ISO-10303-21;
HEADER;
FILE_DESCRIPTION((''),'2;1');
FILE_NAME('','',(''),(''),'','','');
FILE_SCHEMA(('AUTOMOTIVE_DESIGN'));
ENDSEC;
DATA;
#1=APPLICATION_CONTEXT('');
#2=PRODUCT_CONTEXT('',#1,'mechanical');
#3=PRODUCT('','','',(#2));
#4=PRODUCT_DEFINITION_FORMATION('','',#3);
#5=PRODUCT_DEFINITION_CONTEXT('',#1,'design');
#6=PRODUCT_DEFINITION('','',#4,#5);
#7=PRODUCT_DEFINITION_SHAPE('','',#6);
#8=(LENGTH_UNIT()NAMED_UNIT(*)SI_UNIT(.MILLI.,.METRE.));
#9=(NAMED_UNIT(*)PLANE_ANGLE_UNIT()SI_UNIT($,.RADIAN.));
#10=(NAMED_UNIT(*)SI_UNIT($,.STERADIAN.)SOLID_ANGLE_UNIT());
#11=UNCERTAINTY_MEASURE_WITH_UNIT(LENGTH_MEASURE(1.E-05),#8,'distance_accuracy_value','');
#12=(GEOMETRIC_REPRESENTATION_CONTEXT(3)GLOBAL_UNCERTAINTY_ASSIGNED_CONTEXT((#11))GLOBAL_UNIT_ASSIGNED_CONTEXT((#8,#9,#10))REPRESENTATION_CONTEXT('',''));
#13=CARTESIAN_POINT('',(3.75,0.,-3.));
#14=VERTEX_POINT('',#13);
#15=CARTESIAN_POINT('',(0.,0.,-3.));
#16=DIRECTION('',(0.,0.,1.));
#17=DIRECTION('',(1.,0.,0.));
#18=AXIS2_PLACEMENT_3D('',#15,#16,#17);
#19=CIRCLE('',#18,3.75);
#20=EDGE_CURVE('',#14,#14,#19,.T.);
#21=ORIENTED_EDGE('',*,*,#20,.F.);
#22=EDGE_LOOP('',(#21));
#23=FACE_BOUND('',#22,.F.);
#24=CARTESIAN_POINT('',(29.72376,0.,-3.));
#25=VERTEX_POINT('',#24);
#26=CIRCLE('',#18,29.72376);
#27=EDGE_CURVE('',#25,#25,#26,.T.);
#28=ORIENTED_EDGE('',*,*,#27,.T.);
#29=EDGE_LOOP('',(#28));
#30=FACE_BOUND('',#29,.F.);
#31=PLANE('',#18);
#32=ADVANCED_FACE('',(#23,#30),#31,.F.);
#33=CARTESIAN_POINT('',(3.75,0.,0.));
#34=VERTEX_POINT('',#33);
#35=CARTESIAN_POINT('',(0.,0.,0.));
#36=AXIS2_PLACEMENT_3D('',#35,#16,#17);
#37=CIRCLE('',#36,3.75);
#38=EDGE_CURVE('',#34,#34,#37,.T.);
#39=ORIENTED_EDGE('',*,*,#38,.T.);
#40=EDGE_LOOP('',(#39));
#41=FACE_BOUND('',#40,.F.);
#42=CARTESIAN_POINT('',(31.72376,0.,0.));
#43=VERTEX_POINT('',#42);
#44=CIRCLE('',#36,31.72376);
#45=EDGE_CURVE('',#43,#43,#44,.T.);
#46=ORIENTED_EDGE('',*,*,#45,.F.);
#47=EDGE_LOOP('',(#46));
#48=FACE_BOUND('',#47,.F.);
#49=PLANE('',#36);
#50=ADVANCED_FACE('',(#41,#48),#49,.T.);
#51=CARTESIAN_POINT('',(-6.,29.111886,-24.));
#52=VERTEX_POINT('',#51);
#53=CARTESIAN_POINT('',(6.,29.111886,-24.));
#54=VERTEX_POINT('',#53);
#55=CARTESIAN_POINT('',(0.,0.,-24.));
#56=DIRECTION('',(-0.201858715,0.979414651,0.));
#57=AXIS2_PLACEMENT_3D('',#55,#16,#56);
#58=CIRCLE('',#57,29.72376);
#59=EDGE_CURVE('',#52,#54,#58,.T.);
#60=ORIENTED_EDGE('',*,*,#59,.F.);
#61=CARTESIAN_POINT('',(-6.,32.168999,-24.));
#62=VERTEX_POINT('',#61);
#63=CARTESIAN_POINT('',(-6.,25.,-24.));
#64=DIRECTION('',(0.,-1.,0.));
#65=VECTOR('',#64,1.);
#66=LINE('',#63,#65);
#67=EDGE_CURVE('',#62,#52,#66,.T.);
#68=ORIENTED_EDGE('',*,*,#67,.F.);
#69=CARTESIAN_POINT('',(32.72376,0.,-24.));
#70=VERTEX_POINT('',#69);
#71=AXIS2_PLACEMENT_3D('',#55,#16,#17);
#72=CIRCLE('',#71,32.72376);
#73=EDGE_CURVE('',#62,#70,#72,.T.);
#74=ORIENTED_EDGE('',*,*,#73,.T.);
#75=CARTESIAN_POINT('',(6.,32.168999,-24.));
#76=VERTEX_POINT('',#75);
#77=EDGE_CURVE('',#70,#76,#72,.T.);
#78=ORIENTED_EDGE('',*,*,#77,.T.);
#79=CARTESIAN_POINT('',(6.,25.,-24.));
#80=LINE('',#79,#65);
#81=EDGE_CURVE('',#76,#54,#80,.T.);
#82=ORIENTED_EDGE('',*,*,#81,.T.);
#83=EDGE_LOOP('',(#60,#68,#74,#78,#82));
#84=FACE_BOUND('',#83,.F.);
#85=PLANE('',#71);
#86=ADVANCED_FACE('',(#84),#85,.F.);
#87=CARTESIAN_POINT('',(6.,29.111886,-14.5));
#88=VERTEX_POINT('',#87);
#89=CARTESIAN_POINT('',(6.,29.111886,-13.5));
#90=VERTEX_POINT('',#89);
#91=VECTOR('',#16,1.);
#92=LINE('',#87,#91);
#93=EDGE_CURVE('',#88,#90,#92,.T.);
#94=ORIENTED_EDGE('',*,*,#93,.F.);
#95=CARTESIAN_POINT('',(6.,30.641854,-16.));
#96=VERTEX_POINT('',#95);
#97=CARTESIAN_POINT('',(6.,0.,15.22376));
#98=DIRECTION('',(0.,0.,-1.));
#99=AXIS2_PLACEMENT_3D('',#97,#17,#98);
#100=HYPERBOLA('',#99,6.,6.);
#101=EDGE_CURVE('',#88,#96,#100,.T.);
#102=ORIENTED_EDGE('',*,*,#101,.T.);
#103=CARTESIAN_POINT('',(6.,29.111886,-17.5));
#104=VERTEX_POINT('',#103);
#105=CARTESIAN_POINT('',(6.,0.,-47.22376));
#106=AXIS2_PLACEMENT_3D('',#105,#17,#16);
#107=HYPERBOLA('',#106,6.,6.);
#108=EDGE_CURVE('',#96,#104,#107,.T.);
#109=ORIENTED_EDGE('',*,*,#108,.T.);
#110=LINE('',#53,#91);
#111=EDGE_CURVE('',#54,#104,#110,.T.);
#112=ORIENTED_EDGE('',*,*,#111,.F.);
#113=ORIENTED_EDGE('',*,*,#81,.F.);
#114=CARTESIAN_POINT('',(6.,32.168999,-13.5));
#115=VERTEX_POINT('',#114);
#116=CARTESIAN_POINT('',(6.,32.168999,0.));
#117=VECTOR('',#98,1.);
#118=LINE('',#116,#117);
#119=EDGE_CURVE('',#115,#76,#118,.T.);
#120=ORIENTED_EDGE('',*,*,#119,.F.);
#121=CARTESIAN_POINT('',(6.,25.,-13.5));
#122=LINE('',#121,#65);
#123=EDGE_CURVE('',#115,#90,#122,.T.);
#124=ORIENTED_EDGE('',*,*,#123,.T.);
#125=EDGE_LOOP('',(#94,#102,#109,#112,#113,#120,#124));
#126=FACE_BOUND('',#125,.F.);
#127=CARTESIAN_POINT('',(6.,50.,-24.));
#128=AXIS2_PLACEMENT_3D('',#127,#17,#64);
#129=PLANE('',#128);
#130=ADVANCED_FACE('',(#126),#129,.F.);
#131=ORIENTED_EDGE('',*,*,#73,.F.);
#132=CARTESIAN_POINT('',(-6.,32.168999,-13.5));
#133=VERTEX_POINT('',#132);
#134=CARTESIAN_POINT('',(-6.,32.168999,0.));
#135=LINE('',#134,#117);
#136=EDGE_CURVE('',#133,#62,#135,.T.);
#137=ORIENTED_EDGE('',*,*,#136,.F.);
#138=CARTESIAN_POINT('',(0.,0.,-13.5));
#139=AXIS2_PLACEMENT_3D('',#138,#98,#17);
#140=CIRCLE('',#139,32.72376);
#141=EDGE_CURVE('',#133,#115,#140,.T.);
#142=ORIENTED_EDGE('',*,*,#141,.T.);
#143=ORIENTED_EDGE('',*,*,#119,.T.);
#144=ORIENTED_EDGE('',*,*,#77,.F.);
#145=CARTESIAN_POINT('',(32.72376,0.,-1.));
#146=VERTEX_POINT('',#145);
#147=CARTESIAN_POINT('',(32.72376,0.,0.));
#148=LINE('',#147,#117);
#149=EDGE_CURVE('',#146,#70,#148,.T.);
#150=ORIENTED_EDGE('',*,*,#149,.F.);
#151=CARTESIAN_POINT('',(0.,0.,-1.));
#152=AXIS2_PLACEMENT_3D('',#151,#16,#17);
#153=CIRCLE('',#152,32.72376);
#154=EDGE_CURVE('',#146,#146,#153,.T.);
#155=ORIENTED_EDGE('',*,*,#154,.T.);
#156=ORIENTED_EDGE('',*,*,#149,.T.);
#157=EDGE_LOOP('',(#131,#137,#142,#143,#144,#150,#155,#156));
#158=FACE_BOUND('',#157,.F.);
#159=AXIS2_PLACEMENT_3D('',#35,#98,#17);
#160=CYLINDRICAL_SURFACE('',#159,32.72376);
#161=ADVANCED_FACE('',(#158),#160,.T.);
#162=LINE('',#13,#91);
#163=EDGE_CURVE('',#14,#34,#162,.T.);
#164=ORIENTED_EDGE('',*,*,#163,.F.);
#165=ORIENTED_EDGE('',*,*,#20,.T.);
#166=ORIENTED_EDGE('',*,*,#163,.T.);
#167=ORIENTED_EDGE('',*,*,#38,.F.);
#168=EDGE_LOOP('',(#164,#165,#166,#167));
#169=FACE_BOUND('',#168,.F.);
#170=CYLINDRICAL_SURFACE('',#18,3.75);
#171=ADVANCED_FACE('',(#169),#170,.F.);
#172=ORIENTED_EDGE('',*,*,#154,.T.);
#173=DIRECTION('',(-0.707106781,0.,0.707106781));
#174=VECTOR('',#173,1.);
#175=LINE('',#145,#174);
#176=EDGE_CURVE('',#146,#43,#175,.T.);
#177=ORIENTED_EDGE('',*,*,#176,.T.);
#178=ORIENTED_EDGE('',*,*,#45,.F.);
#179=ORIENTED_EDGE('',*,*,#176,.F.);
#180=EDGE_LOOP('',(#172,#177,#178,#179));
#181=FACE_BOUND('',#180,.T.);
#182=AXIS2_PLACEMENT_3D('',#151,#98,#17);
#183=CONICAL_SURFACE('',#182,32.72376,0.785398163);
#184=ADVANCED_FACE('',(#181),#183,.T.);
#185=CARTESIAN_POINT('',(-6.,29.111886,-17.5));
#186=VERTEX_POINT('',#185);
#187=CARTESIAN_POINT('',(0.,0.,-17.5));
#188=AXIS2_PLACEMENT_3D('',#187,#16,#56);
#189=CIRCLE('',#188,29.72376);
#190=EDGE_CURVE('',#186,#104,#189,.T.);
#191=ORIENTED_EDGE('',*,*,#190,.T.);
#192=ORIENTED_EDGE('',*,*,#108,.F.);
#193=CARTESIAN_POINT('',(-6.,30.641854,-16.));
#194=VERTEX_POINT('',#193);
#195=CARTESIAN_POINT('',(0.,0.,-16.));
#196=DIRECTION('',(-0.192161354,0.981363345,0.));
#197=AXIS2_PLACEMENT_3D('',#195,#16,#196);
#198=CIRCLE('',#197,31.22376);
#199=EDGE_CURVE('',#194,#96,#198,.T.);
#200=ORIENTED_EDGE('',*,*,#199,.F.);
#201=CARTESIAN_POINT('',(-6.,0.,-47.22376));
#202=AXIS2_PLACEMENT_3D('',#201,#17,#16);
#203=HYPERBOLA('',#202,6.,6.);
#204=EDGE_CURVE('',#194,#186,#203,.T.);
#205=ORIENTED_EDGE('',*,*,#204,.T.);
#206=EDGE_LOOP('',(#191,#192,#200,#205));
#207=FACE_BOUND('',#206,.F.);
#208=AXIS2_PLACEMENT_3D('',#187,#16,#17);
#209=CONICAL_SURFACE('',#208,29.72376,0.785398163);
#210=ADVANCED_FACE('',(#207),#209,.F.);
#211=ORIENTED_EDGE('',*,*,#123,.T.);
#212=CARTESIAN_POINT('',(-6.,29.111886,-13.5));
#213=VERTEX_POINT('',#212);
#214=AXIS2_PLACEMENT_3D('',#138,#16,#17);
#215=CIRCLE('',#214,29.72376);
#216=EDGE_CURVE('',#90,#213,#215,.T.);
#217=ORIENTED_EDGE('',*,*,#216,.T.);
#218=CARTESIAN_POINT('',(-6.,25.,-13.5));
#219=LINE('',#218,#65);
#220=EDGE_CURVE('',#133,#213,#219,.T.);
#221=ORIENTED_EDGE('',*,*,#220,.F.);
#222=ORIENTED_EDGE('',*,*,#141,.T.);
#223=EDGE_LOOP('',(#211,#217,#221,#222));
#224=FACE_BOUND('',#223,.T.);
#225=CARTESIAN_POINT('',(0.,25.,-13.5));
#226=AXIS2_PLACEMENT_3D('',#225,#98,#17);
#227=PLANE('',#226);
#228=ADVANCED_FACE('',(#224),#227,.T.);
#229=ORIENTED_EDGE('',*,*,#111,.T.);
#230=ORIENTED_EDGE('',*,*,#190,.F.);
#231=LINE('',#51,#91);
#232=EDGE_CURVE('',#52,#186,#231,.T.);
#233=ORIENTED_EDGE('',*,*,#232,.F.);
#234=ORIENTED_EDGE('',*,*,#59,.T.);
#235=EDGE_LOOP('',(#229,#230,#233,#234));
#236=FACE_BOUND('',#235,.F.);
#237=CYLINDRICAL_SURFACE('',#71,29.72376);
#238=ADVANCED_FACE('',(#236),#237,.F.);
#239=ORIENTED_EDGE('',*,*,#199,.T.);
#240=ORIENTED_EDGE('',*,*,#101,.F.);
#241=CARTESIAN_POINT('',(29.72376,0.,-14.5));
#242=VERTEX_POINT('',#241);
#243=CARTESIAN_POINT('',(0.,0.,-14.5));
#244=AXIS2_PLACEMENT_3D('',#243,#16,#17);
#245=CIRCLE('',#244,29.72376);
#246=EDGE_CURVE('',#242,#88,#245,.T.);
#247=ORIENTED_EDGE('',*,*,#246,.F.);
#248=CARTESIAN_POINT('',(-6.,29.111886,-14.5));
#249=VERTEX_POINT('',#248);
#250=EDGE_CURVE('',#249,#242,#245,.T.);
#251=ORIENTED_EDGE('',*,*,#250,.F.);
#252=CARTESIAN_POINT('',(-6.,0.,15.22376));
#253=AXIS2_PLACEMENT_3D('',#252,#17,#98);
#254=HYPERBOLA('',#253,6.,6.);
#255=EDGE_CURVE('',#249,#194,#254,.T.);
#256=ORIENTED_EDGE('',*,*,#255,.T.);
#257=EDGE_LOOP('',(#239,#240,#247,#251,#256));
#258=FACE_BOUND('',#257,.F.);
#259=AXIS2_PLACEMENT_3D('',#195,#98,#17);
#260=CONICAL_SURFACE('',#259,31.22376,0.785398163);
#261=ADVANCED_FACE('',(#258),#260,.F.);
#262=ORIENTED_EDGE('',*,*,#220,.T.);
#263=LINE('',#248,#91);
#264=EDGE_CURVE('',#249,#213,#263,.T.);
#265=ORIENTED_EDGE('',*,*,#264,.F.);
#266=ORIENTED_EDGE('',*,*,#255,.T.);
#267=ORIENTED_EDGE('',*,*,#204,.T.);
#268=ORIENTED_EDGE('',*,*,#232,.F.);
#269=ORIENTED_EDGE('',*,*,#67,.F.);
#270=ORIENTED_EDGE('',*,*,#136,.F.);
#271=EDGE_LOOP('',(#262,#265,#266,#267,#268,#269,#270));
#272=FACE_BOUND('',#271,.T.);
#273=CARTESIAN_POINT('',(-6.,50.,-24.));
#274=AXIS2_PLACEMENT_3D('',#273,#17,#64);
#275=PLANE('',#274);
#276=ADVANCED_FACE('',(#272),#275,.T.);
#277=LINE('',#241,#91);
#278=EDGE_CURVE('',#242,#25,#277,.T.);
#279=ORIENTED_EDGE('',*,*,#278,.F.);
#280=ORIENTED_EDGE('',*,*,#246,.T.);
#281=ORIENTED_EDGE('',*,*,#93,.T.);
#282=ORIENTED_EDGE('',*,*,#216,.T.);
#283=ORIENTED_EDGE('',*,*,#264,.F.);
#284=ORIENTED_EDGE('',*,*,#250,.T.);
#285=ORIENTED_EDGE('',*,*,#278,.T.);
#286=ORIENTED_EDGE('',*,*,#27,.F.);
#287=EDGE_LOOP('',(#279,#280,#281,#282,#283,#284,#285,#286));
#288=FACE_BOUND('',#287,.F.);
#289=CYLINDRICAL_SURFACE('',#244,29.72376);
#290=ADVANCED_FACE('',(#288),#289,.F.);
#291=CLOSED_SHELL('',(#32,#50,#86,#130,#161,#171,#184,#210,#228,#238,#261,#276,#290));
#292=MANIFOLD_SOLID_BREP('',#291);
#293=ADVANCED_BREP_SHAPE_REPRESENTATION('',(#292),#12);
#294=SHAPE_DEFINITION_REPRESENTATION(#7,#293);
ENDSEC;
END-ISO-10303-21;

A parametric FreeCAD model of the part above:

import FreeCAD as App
import Part
import Sketcher

V = App.Vector


def edges_at(feature, points):
    """Names of the edges that pass closest to the given points."""
    edges = feature.Shape.Edges
    near = lambda p: min(range(len(edges)), key=lambda i: edges[i].distToShape(Part.Vertex(*p))[0])
    return sorted({f"Edge{near(p) + 1}" for p in points})

doc = App.newDocument("Part")
body = doc.addObject("PartDesign::Body", "Body")

# Sketch on XZ plane
sketch1 = body.newObject("Sketcher::SketchObject", "Sketch")
sketch1.AttachmentSupport = (doc.getObject("XZ_Plane"), [""])
sketch1.MapMode = "FlatFace"
sketch1.addGeometry([
    Part.LineSegment(V(32.7, -24, 0), V(32.7, 0, 0)),  # 0
    Part.LineSegment(V(32.7, 0, 0), V(3.8, 0, 0)),  # 1
    Part.LineSegment(V(3.8, 0, 0), V(3.8, -3, 0)),  # 2
    Part.LineSegment(V(3.8, -3, 0), V(29.7, -3, 0)),  # 3
    Part.LineSegment(V(29.7, -3, 0), V(29.7, -14.5, 0)),  # 4
    Part.LineSegment(V(29.7, -14.5, 0), V(31.2, -16, 0)),  # 5
    Part.LineSegment(V(31.2, -16, 0), V(29.7, -17.5, 0)),  # 6
    Part.LineSegment(V(29.7, -17.5, 0), V(29.7, -24, 0)),  # 7
    Part.LineSegment(V(29.7, -24, 0), V(32.7, -24, 0)),  # 8
], False)
sketch1.addConstraint([
    Sketcher.Constraint("Coincident", 0, 2, 1, 1),
    Sketcher.Constraint("Coincident", 1, 2, 2, 1),
    Sketcher.Constraint("Coincident", 2, 2, 3, 1),
    Sketcher.Constraint("Coincident", 3, 2, 4, 1),
    Sketcher.Constraint("Coincident", 4, 2, 5, 1),
    Sketcher.Constraint("Coincident", 5, 2, 6, 1),
    Sketcher.Constraint("Coincident", 6, 2, 7, 1),
    Sketcher.Constraint("Coincident", 7, 2, 8, 1),
    Sketcher.Constraint("Coincident", 8, 2, 0, 1),
    Sketcher.Constraint("Vertical", 0),
    Sketcher.Constraint("Horizontal", 1),
    Sketcher.Constraint("Vertical", 2),
    Sketcher.Constraint("Horizontal", 3),
    Sketcher.Constraint("Vertical", 4),
    Sketcher.Constraint("Vertical", 7),
    Sketcher.Constraint("Horizontal", 8),
    Sketcher.Constraint("PointOnObject", 0, 2, -1),
    Sketcher.Constraint("Perpendicular", 5, 6),
    Sketcher.Constraint("Vertical", 4, 2, 6, 2),
    Sketcher.Constraint("Equal", 8, 2),
    Sketcher.Constraint("Equal", 5, 6),
    Sketcher.Constraint("DistanceX", 8, 1, 8, 2, 3.0),
    Sketcher.Constraint("DistanceY", 0, 1, 0, 2, 24.0),
    Sketcher.Constraint("DistanceY", 4, 2, 4, 1, 11.5),
    Sketcher.Constraint("DistanceY", 7, 2, 7, 1, 6.5),
    Sketcher.Constraint("DistanceX", -1, 1, 1, 2, 3.75),
    Sketcher.Constraint("DistanceX", 1, 2, 1, 1, 28.97376),
])
revolution = body.newObject("PartDesign::Revolution", "Revolution")
revolution.Profile = sketch1
revolution.ReferenceAxis = (sketch1, ["V_Axis"])
revolution.Angle = 360
doc.recompute()

chamfer = body.newObject("PartDesign::Chamfer", "Chamfer")
chamfer.Base = (revolution, edges_at(revolution, [(-32.724, 0, 0)]))
chamfer.Size = 1

# Sketch on XY plane
sketch2 = body.newObject("Sketcher::SketchObject", "Sketch001")
sketch2.AttachmentSupport = (doc.getObject("XY_Plane"), [""])
sketch2.MapMode = "FlatFace"
sketch2.AttachmentOffset = App.Placement(V(0, 0, -24), App.Rotation())
sketch2.addGeometry([
    Part.LineSegment(V(-6, 0, 0), V(-6, 50, 0)),
    Part.LineSegment(V(-6, 50, 0), V(6, 50, 0)),
    Part.LineSegment(V(6, 50, 0), V(6, 0, 0)),
    Part.LineSegment(V(6, 0, 0), V(-6, 0, 0)),
], False)
sketch2.addConstraint([
    Sketcher.Constraint("Coincident", 0, 2, 1, 1),
    Sketcher.Constraint("Coincident", 1, 2, 2, 1),
    Sketcher.Constraint("Coincident", 2, 2, 3, 1),
    Sketcher.Constraint("Coincident", 3, 2, 0, 1),
    Sketcher.Constraint("Vertical", 0),
    Sketcher.Constraint("Horizontal", 1),
    Sketcher.Constraint("Vertical", 2),
    Sketcher.Constraint("Horizontal", 3),
    Sketcher.Constraint("Symmetric", 2, 2, 3, 2, -1, 1),
    Sketcher.Constraint("DistanceX", 1, 1, 1, 2, 12.0),
    Sketcher.Constraint("DistanceY", 0, 1, 0, 2, 50.0),
])
pocket1 = body.newObject("PartDesign::Pocket", "Pocket")
pocket1.Profile = sketch2
pocket1.Length = 10.5
pocket1.Reversed = True

doc.recompute()
